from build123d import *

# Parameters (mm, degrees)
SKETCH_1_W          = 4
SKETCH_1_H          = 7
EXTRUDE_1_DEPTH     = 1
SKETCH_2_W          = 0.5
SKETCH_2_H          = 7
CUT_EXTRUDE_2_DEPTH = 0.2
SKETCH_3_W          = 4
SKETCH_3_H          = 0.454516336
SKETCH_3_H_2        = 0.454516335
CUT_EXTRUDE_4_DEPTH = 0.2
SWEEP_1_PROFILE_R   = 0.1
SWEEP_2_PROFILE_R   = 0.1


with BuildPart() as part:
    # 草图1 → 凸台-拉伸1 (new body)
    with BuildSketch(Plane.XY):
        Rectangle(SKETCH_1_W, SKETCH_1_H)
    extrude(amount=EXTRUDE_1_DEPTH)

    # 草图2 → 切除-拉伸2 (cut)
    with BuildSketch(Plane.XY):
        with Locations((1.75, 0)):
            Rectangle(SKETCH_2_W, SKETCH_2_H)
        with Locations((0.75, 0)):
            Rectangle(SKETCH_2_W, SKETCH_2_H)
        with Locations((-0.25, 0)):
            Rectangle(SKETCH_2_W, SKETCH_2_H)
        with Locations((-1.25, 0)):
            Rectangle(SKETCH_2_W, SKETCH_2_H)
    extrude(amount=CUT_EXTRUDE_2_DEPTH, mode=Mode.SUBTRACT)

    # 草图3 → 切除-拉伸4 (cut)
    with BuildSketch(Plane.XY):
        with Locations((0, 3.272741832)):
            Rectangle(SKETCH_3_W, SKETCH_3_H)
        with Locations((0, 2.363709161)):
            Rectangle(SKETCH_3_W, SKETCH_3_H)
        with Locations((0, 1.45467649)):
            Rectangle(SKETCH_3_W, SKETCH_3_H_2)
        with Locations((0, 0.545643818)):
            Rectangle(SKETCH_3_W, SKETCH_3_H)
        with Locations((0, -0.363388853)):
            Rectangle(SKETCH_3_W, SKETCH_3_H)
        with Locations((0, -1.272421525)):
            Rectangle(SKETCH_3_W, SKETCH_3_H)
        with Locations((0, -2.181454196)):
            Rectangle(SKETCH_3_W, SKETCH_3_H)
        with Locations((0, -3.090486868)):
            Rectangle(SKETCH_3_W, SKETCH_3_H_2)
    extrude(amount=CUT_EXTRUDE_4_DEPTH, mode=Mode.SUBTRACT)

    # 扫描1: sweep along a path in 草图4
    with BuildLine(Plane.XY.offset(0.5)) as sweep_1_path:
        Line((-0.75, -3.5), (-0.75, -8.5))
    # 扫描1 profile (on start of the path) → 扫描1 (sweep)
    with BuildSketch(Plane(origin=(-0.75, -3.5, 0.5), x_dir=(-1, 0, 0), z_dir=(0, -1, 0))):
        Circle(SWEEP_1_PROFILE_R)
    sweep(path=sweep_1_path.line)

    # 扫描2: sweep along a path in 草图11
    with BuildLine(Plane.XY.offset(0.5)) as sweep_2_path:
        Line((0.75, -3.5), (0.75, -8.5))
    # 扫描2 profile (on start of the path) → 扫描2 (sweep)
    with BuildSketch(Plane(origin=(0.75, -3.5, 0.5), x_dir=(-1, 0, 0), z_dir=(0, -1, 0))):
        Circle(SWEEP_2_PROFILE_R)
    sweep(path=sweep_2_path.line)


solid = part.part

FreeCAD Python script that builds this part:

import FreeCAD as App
import Part
import Sketcher
Q = App.Units.Quantity


def add_polygon(sketch, points):
    """Adds a closed chain of lines whose ends are joined by coincident constraints."""
    first, n = sketch.GeometryCount, len(points)
    for a, b in zip(points, points[1:] + points[:1]):
        sketch.addGeometry(Part.LineSegment(App.Vector(*a, 0), App.Vector(*b, 0)), False)
    for i in range(n):
        sketch.addConstraint(Sketcher.Constraint("Coincident", first + i, 2, first + (i + 1) % n, 1))

doc = App.newDocument("Part")
body = doc.addObject("PartDesign::Body", "Body")

# Sketch on XY plane
sketch1 = doc.addObject("Sketcher::SketchObject", "Sketch")
body.addObject(sketch1)
sketch1.AttachmentSupport = (doc.XY_Plane, [""])
sketch1.MapMode = "FlatFace"
add_polygon(sketch1, [(-2, 3.5), (-2, -3.5), (2, -3.5), (2, 3.5)])  # lines 0-3
sketch1.addConstraint([
    Sketcher.Constraint("Vertical", 0),
    Sketcher.Constraint("Horizontal", 1),
    Sketcher.Constraint("Vertical", 2),
    Sketcher.Constraint("Horizontal", 3),
    Sketcher.Constraint("Symmetric", 0, 2, 2, 2, -1, 1),
    Sketcher.Constraint("DistanceX", 1, 1, 1, 2, Q("4 mm")),
    Sketcher.Constraint("DistanceY", 0, 2, 0, 1, Q("7 mm")),
])
pad1 = doc.addObject("PartDesign::Pad", "Pad")
body.addObject(pad1)
pad1.Profile = sketch1
pad1.Length = 1

# Sketch on XY plane
sketch2 = doc.addObject("Sketcher::SketchObject", "Sketch001")
body.addObject(sketch2)
sketch2.AttachmentSupport = (doc.XY_Plane, [""])
sketch2.MapMode = "FlatFace"
add_polygon(sketch2, [(1.5, 3.5), (1.5, -3.5), (2, -3.5), (2, 3.5)])  # lines 0-3
add_polygon(sketch2, [(0.5, 3.5), (0.5, -3.5), (1, -3.5), (1, 3.5)])  # lines 4-7
add_polygon(sketch2, [(-0.5, 3.5), (-0.5, -3.5), (0, -3.5), (0, 3.5)])  # lines 8-11
add_polygon(sketch2, [(-1.5, 3.5), (-1.5, -3.5), (-1, -3.5), (-1, 3.5)])  # lines 12-15
sketch2.addConstraint([
    Sketcher.Constraint("Vertical", 0),
    Sketcher.Constraint("Horizontal", 1),
    Sketcher.Constraint("Vertical", 2),
    Sketcher.Constraint("Horizontal", 3),
    Sketcher.Constraint("Vertical", 4),
    Sketcher.Constraint("Horizontal", 5),
    Sketcher.Constraint("Vertical", 6),
    Sketcher.Constraint("Horizontal", 7),
    Sketcher.Constraint("Vertical", 8),
    Sketcher.Constraint("Horizontal", 9),
    Sketcher.Constraint("Vertical", 10),
    Sketcher.Constraint("Horizontal", 11),
    Sketcher.Constraint("Vertical", 12),
    Sketcher.Constraint("Horizontal", 13),
    Sketcher.Constraint("Vertical", 14),
    Sketcher.Constraint("Horizontal", 15),
    Sketcher.Constraint("Symmetric", 7, 2, 8, 2, -1, 1),
    Sketcher.Constraint("Symmetric", 9, 2, 10, 2, -1, 1),
    Sketcher.Constraint("Symmetric", 3, 2, 12, 2, -1, 1),
    Sketcher.Constraint("Symmetric", 6, 2, 13, 2, -1, 1),
    Sketcher.Constraint("Horizontal", 1, 2, 4, 2),
    Sketcher.Constraint("Horizontal", 5, 2, 8, 2),
    Sketcher.Constraint("Horizontal", 11, 2, 14, 2),
    Sketcher.Constraint("Equal", 3, 5),
    Sketcher.Constraint("Equal", 7, 9),
    Sketcher.Constraint("Equal", 11, 13),
    Sketcher.Constraint("DistanceY", 0, 2, 0, 1, Q("7 mm")),
    Sketcher.Constraint("DistanceX", 1, 1, 1, 2, Q("0.5 mm")),
])
pocket1 = doc.addObject("PartDesign::Pocket", "Pocket")
body.addObject(pocket1)
pocket1.Profile = sketch2
pocket1.Length = 0.2
pocket1.Reversed = True

# Sketch on XY plane
sketch3 = doc.addObject("Sketcher::SketchObject", "Sketch002")
body.addObject(sketch3)
sketch3.AttachmentSupport = (doc.XY_Plane, [""])
sketch3.MapMode = "FlatFace"
add_polygon(sketch3, [(-2, 3.5), (-2, 3.045484), (2, 3.045484), (2, 3.5)])  # lines 0-3
add_polygon(sketch3, [(-2, 2.590967), (-2, 2.136451), (2, 2.136451), (2, 2.590967)])  # lines 4-7
add_polygon(sketch3, [(-2, 1.681935), (-2, 1.227418), (2, 1.227418), (2, 1.681935)])  # lines 8-11
add_polygon(sketch3, [(-2, 0.772902), (-2, 0.318386), (2, 0.318386), (2, 0.772902)])  # lines 12-15
add_polygon(sketch3, [(-2, -0.136131), (-2, -0.590647), (2, -0.590647), (2, -0.136131)])  # lines 16-19
add_polygon(sketch3, [(-2, -1.045163), (-2, -1.49968), (2, -1.49968), (2, -1.045163)])  # lines 20-23
add_polygon(sketch3, [(-2, -1.954196), (-2, -2.408712), (2, -2.408712), (2, -1.954196)])  # lines 24-27
add_polygon(sketch3, [(-2, -2.863229), (-2, -3.317745), (2, -3.317745), (2, -2.863229)])  # lines 28-31
sketch3.addConstraint([
    Sketcher.Constraint("Vertical", 0),
    Sketcher.Constraint("Horizontal", 1),
    Sketcher.Constraint("Vertical", 2),
    Sketcher.Constraint("Horizontal", 3),
    Sketcher.Constraint("Vertical", 4),
    Sketcher.Constraint("Horizontal", 5),
    Sketcher.Constraint("Vertical", 6),
    Sketcher.Constraint("Horizontal", 7),
    Sketcher.Constraint("Vertical", 8),
    Sketcher.Constraint("Horizontal", 9),
    Sketcher.Constraint("Vertical", 10),
    Sketcher.Constraint("Horizontal", 11),
    Sketcher.Constraint("Vertical", 12),
    Sketcher.Constraint("Horizontal", 13),
    Sketcher.Constraint("Vertical", 14),
    Sketcher.Constraint("Horizontal", 15),
    Sketcher.Constraint("Vertical", 16),
    Sketcher.Constraint("Horizontal", 17),
    Sketcher.Constraint("Vertical", 18),
    Sketcher.Constraint("Horizontal", 19),
    Sketcher.Constraint("Vertical", 20),
    Sketcher.Constraint("Horizontal", 21),
    Sketcher.Constraint("Vertical", 22),
    Sketcher.Constraint("Horizontal", 23),
    Sketcher.Constraint("Vertical", 24),
    Sketcher.Constraint("Horizontal", 25),
    Sketcher.Constraint("Vertical", 26),
    Sketcher.Constraint("Horizontal", 27),
    Sketcher.Constraint("Vertical", 28),
    Sketcher.Constraint("Horizontal", 29),
    Sketcher.Constraint("Vertical", 30),
    Sketcher.Constraint("Horizontal", 31),
    Sketcher.Constraint("Vertical", 3, 2, 4, 2),
    Sketcher.Constraint("Vertical", 2, 2, 5, 2),
    Sketcher.Constraint("Vertical", 7, 2, 8, 2),
    Sketcher.Constraint("Vertical", 6, 2, 9, 2),
    Sketcher.Constraint("Vertical", 11, 2, 12, 2),
    Sketcher.Constraint("Vertical", 10, 2, 13, 2),
    Sketcher.Constraint("Vertical", 15, 2, 16, 2),
    Sketcher.Constraint("Vertical", 14, 2, 17, 2),
    Sketcher.Constraint("Vertical", 19, 2, 20, 2),
    Sketcher.Constraint("Vertical", 18, 2, 21, 2),
    Sketcher.Constraint("Vertical", 23, 2, 24, 2),
    Sketcher.Constraint("Vertical", 22, 2, 25, 2),
    Sketcher.Constraint("Vertical", 27, 2, 28, 2),
    Sketcher.Constraint("Vertical", 26, 2, 29, 2),
    Sketcher.Constraint("Equal", 2, 4),
    Sketcher.Constraint("Equal", 6, 8),
    Sketcher.Constraint("Equal", 10, 12),
    Sketcher.Constraint("Equal", 14, 16),
    Sketcher.Constraint("Equal", 18, 20),
    Sketcher.Constraint("Equal", 22, 24),
    Sketcher.Constraint("Equal", 26, 28),
    Sketcher.Constraint("DistanceX", 1, 1, 1, 2, Q("4 mm")),
    Sketcher.Constraint("DistanceX", 0, 2, -1, 1, Q("2 mm")),
    Sketcher.Constraint("DistanceY", -1, 1, 2, 2, Q("3.5 mm")),
    Sketcher.Constraint("DistanceY", -1, 1, 14, 2, Q("0.772902 mm")),
    Sketcher.Constraint("DistanceY", 16, 2, 4, 2, Q("2.727098 mm")),
    Sketcher.Constraint("DistanceY", 20, 2, 8, 2, Q("2.727098 mm")),
    Sketcher.Constraint("DistanceY", 24, 2, 12, 2, Q("2.727098 mm")),
    Sketcher.Constraint("DistanceY", 28, 2, 16, 2, Q("2.727098 mm")),
    Sketcher.Constraint("DistanceY", 0, 2, 0, 1, Q("0.454516 mm")),
    Sketcher.Constraint("DistanceY", -1, 1, 4, 2, Q("2.136451 mm")),
    Sketcher.Constraint("DistanceY", -1, 1, 8, 2, Q("1.227418 mm")),
])
pocket2 = doc.addObject("PartDesign::Pocket", "Pocket001")
body.addObject(pocket2)
pocket2.Profile = sketch3
pocket2.Length = 0.2
pocket2.Reversed = True

# Sketch on XZ plane
sketch4 = doc.addObject("Sketcher::SketchObject", "Sketch003")
body.addObject(sketch4)
sketch4.AttachmentSupport = (doc.XZ_Plane, [""])
sketch4.MapMode = "FlatFace"
sketch4.AttachmentOffset = App.Placement(App.Vector(0, 0, 3.5), App.Rotation())
sketch4.addGeometry(Part.Circle(App.Vector(-0.75, 0.5, 0), App.Vector(0, 0, 1), 0.1), False)
sketch4.addConstraint([
    Sketcher.Constraint("Diameter", 0, Q("0.2 mm")),
    Sketcher.Constraint("DistanceY", -1, 1, 0, 3, Q("0.5 mm")),
    Sketcher.Constraint("DistanceX", 0, 3, -1, 1, Q("0.75 mm")),
])

# Sketch on XY plane
sketch5 = doc.addObject("Sketcher::SketchObject", "Sketch004")
body.addObject(sketch5)
sketch5.AttachmentSupport = (doc.XY_Plane, [""])
sketch5.MapMode = "FlatFace"
sketch5.AttachmentOffset = App.Placement(App.Vector(0, 0, 0.5), App.Rotation())
sketch5.addGeometry(Part.LineSegment(App.Vector(-0.75, -3.5, 0), App.Vector(-0.75, -8.5, 0)), False)
sketch5.addConstraint([
    Sketcher.Constraint("Vertical", 0),
    Sketcher.Constraint("DistanceY", 0, 2, 0, 1, Q("5 mm")),
    Sketcher.Constraint("DistanceY", 0, 1, -1, 1, Q("3.5 mm")),
    Sketcher.Constraint("DistanceX", 0, 1, -1, 1, Q("0.75 mm")),
])
doc.recompute()

additivepipe = doc.addObject("PartDesign::AdditivePipe", "AdditivePipe")
body.addObject(additivepipe)
additivepipe.Profile = sketch4
additivepipe.Spine = (sketch5, ["Edge1"])

# Sketch on XZ plane
sketch6 = doc.addObject("Sketcher::SketchObject", "Sketch005")
body.addObject(sketch6)
sketch6.AttachmentSupport = (doc.XZ_Plane, [""])
sketch6.MapMode = "FlatFace"
sketch6.AttachmentOffset = App.Placement(App.Vector(0, 0, 3.5), App.Rotation())
sketch6.addGeometry(Part.Circle(App.Vector(0.75, 0.5, 0), App.Vector(0, 0, 1), 0.1), False)
sketch6.addConstraint([
    Sketcher.Constraint("Diameter", 0, Q("0.2 mm")),
    Sketcher.Constraint("DistanceY", -1, 1, 0, 3, Q("0.5 mm")),
    Sketcher.Constraint("DistanceX", -1, 1, 0, 3, Q("0.75 mm")),
])

# Sketch on XY plane
sketch7 = doc.addObject("Sketcher::SketchObject", "Sketch006")
body.addObject(sketch7)
sketch7.AttachmentSupport = (doc.XY_Plane, [""])
sketch7.MapMode = "FlatFace"
sketch7.AttachmentOffset = App.Placement(App.Vector(0, 0, 0.5), App.Rotation())
sketch7.addGeometry(Part.LineSegment(App.Vector(0.75, -3.5, 0), App.Vector(0.75, -8.5, 0)), False)
sketch7.addConstraint([
    Sketcher.Constraint("Vertical", 0),
    Sketcher.Constraint("DistanceY", 0, 2, 0, 1, Q("5 mm")),
    Sketcher.Constraint("DistanceY", 0, 1, -1, 1, Q("3.5 mm")),
    Sketcher.Constraint("DistanceX", -1, 1, 0, 1, Q("0.75 mm")),
])
doc.recompute()

additivepipe2 = doc.addObject("PartDesign::AdditivePipe", "AdditivePipe001")
body.addObject(additivepipe2)
additivepipe2.Profile = sketch6
additivepipe2.Spine = (sketch7, ["Edge1"])

doc.recompute()
